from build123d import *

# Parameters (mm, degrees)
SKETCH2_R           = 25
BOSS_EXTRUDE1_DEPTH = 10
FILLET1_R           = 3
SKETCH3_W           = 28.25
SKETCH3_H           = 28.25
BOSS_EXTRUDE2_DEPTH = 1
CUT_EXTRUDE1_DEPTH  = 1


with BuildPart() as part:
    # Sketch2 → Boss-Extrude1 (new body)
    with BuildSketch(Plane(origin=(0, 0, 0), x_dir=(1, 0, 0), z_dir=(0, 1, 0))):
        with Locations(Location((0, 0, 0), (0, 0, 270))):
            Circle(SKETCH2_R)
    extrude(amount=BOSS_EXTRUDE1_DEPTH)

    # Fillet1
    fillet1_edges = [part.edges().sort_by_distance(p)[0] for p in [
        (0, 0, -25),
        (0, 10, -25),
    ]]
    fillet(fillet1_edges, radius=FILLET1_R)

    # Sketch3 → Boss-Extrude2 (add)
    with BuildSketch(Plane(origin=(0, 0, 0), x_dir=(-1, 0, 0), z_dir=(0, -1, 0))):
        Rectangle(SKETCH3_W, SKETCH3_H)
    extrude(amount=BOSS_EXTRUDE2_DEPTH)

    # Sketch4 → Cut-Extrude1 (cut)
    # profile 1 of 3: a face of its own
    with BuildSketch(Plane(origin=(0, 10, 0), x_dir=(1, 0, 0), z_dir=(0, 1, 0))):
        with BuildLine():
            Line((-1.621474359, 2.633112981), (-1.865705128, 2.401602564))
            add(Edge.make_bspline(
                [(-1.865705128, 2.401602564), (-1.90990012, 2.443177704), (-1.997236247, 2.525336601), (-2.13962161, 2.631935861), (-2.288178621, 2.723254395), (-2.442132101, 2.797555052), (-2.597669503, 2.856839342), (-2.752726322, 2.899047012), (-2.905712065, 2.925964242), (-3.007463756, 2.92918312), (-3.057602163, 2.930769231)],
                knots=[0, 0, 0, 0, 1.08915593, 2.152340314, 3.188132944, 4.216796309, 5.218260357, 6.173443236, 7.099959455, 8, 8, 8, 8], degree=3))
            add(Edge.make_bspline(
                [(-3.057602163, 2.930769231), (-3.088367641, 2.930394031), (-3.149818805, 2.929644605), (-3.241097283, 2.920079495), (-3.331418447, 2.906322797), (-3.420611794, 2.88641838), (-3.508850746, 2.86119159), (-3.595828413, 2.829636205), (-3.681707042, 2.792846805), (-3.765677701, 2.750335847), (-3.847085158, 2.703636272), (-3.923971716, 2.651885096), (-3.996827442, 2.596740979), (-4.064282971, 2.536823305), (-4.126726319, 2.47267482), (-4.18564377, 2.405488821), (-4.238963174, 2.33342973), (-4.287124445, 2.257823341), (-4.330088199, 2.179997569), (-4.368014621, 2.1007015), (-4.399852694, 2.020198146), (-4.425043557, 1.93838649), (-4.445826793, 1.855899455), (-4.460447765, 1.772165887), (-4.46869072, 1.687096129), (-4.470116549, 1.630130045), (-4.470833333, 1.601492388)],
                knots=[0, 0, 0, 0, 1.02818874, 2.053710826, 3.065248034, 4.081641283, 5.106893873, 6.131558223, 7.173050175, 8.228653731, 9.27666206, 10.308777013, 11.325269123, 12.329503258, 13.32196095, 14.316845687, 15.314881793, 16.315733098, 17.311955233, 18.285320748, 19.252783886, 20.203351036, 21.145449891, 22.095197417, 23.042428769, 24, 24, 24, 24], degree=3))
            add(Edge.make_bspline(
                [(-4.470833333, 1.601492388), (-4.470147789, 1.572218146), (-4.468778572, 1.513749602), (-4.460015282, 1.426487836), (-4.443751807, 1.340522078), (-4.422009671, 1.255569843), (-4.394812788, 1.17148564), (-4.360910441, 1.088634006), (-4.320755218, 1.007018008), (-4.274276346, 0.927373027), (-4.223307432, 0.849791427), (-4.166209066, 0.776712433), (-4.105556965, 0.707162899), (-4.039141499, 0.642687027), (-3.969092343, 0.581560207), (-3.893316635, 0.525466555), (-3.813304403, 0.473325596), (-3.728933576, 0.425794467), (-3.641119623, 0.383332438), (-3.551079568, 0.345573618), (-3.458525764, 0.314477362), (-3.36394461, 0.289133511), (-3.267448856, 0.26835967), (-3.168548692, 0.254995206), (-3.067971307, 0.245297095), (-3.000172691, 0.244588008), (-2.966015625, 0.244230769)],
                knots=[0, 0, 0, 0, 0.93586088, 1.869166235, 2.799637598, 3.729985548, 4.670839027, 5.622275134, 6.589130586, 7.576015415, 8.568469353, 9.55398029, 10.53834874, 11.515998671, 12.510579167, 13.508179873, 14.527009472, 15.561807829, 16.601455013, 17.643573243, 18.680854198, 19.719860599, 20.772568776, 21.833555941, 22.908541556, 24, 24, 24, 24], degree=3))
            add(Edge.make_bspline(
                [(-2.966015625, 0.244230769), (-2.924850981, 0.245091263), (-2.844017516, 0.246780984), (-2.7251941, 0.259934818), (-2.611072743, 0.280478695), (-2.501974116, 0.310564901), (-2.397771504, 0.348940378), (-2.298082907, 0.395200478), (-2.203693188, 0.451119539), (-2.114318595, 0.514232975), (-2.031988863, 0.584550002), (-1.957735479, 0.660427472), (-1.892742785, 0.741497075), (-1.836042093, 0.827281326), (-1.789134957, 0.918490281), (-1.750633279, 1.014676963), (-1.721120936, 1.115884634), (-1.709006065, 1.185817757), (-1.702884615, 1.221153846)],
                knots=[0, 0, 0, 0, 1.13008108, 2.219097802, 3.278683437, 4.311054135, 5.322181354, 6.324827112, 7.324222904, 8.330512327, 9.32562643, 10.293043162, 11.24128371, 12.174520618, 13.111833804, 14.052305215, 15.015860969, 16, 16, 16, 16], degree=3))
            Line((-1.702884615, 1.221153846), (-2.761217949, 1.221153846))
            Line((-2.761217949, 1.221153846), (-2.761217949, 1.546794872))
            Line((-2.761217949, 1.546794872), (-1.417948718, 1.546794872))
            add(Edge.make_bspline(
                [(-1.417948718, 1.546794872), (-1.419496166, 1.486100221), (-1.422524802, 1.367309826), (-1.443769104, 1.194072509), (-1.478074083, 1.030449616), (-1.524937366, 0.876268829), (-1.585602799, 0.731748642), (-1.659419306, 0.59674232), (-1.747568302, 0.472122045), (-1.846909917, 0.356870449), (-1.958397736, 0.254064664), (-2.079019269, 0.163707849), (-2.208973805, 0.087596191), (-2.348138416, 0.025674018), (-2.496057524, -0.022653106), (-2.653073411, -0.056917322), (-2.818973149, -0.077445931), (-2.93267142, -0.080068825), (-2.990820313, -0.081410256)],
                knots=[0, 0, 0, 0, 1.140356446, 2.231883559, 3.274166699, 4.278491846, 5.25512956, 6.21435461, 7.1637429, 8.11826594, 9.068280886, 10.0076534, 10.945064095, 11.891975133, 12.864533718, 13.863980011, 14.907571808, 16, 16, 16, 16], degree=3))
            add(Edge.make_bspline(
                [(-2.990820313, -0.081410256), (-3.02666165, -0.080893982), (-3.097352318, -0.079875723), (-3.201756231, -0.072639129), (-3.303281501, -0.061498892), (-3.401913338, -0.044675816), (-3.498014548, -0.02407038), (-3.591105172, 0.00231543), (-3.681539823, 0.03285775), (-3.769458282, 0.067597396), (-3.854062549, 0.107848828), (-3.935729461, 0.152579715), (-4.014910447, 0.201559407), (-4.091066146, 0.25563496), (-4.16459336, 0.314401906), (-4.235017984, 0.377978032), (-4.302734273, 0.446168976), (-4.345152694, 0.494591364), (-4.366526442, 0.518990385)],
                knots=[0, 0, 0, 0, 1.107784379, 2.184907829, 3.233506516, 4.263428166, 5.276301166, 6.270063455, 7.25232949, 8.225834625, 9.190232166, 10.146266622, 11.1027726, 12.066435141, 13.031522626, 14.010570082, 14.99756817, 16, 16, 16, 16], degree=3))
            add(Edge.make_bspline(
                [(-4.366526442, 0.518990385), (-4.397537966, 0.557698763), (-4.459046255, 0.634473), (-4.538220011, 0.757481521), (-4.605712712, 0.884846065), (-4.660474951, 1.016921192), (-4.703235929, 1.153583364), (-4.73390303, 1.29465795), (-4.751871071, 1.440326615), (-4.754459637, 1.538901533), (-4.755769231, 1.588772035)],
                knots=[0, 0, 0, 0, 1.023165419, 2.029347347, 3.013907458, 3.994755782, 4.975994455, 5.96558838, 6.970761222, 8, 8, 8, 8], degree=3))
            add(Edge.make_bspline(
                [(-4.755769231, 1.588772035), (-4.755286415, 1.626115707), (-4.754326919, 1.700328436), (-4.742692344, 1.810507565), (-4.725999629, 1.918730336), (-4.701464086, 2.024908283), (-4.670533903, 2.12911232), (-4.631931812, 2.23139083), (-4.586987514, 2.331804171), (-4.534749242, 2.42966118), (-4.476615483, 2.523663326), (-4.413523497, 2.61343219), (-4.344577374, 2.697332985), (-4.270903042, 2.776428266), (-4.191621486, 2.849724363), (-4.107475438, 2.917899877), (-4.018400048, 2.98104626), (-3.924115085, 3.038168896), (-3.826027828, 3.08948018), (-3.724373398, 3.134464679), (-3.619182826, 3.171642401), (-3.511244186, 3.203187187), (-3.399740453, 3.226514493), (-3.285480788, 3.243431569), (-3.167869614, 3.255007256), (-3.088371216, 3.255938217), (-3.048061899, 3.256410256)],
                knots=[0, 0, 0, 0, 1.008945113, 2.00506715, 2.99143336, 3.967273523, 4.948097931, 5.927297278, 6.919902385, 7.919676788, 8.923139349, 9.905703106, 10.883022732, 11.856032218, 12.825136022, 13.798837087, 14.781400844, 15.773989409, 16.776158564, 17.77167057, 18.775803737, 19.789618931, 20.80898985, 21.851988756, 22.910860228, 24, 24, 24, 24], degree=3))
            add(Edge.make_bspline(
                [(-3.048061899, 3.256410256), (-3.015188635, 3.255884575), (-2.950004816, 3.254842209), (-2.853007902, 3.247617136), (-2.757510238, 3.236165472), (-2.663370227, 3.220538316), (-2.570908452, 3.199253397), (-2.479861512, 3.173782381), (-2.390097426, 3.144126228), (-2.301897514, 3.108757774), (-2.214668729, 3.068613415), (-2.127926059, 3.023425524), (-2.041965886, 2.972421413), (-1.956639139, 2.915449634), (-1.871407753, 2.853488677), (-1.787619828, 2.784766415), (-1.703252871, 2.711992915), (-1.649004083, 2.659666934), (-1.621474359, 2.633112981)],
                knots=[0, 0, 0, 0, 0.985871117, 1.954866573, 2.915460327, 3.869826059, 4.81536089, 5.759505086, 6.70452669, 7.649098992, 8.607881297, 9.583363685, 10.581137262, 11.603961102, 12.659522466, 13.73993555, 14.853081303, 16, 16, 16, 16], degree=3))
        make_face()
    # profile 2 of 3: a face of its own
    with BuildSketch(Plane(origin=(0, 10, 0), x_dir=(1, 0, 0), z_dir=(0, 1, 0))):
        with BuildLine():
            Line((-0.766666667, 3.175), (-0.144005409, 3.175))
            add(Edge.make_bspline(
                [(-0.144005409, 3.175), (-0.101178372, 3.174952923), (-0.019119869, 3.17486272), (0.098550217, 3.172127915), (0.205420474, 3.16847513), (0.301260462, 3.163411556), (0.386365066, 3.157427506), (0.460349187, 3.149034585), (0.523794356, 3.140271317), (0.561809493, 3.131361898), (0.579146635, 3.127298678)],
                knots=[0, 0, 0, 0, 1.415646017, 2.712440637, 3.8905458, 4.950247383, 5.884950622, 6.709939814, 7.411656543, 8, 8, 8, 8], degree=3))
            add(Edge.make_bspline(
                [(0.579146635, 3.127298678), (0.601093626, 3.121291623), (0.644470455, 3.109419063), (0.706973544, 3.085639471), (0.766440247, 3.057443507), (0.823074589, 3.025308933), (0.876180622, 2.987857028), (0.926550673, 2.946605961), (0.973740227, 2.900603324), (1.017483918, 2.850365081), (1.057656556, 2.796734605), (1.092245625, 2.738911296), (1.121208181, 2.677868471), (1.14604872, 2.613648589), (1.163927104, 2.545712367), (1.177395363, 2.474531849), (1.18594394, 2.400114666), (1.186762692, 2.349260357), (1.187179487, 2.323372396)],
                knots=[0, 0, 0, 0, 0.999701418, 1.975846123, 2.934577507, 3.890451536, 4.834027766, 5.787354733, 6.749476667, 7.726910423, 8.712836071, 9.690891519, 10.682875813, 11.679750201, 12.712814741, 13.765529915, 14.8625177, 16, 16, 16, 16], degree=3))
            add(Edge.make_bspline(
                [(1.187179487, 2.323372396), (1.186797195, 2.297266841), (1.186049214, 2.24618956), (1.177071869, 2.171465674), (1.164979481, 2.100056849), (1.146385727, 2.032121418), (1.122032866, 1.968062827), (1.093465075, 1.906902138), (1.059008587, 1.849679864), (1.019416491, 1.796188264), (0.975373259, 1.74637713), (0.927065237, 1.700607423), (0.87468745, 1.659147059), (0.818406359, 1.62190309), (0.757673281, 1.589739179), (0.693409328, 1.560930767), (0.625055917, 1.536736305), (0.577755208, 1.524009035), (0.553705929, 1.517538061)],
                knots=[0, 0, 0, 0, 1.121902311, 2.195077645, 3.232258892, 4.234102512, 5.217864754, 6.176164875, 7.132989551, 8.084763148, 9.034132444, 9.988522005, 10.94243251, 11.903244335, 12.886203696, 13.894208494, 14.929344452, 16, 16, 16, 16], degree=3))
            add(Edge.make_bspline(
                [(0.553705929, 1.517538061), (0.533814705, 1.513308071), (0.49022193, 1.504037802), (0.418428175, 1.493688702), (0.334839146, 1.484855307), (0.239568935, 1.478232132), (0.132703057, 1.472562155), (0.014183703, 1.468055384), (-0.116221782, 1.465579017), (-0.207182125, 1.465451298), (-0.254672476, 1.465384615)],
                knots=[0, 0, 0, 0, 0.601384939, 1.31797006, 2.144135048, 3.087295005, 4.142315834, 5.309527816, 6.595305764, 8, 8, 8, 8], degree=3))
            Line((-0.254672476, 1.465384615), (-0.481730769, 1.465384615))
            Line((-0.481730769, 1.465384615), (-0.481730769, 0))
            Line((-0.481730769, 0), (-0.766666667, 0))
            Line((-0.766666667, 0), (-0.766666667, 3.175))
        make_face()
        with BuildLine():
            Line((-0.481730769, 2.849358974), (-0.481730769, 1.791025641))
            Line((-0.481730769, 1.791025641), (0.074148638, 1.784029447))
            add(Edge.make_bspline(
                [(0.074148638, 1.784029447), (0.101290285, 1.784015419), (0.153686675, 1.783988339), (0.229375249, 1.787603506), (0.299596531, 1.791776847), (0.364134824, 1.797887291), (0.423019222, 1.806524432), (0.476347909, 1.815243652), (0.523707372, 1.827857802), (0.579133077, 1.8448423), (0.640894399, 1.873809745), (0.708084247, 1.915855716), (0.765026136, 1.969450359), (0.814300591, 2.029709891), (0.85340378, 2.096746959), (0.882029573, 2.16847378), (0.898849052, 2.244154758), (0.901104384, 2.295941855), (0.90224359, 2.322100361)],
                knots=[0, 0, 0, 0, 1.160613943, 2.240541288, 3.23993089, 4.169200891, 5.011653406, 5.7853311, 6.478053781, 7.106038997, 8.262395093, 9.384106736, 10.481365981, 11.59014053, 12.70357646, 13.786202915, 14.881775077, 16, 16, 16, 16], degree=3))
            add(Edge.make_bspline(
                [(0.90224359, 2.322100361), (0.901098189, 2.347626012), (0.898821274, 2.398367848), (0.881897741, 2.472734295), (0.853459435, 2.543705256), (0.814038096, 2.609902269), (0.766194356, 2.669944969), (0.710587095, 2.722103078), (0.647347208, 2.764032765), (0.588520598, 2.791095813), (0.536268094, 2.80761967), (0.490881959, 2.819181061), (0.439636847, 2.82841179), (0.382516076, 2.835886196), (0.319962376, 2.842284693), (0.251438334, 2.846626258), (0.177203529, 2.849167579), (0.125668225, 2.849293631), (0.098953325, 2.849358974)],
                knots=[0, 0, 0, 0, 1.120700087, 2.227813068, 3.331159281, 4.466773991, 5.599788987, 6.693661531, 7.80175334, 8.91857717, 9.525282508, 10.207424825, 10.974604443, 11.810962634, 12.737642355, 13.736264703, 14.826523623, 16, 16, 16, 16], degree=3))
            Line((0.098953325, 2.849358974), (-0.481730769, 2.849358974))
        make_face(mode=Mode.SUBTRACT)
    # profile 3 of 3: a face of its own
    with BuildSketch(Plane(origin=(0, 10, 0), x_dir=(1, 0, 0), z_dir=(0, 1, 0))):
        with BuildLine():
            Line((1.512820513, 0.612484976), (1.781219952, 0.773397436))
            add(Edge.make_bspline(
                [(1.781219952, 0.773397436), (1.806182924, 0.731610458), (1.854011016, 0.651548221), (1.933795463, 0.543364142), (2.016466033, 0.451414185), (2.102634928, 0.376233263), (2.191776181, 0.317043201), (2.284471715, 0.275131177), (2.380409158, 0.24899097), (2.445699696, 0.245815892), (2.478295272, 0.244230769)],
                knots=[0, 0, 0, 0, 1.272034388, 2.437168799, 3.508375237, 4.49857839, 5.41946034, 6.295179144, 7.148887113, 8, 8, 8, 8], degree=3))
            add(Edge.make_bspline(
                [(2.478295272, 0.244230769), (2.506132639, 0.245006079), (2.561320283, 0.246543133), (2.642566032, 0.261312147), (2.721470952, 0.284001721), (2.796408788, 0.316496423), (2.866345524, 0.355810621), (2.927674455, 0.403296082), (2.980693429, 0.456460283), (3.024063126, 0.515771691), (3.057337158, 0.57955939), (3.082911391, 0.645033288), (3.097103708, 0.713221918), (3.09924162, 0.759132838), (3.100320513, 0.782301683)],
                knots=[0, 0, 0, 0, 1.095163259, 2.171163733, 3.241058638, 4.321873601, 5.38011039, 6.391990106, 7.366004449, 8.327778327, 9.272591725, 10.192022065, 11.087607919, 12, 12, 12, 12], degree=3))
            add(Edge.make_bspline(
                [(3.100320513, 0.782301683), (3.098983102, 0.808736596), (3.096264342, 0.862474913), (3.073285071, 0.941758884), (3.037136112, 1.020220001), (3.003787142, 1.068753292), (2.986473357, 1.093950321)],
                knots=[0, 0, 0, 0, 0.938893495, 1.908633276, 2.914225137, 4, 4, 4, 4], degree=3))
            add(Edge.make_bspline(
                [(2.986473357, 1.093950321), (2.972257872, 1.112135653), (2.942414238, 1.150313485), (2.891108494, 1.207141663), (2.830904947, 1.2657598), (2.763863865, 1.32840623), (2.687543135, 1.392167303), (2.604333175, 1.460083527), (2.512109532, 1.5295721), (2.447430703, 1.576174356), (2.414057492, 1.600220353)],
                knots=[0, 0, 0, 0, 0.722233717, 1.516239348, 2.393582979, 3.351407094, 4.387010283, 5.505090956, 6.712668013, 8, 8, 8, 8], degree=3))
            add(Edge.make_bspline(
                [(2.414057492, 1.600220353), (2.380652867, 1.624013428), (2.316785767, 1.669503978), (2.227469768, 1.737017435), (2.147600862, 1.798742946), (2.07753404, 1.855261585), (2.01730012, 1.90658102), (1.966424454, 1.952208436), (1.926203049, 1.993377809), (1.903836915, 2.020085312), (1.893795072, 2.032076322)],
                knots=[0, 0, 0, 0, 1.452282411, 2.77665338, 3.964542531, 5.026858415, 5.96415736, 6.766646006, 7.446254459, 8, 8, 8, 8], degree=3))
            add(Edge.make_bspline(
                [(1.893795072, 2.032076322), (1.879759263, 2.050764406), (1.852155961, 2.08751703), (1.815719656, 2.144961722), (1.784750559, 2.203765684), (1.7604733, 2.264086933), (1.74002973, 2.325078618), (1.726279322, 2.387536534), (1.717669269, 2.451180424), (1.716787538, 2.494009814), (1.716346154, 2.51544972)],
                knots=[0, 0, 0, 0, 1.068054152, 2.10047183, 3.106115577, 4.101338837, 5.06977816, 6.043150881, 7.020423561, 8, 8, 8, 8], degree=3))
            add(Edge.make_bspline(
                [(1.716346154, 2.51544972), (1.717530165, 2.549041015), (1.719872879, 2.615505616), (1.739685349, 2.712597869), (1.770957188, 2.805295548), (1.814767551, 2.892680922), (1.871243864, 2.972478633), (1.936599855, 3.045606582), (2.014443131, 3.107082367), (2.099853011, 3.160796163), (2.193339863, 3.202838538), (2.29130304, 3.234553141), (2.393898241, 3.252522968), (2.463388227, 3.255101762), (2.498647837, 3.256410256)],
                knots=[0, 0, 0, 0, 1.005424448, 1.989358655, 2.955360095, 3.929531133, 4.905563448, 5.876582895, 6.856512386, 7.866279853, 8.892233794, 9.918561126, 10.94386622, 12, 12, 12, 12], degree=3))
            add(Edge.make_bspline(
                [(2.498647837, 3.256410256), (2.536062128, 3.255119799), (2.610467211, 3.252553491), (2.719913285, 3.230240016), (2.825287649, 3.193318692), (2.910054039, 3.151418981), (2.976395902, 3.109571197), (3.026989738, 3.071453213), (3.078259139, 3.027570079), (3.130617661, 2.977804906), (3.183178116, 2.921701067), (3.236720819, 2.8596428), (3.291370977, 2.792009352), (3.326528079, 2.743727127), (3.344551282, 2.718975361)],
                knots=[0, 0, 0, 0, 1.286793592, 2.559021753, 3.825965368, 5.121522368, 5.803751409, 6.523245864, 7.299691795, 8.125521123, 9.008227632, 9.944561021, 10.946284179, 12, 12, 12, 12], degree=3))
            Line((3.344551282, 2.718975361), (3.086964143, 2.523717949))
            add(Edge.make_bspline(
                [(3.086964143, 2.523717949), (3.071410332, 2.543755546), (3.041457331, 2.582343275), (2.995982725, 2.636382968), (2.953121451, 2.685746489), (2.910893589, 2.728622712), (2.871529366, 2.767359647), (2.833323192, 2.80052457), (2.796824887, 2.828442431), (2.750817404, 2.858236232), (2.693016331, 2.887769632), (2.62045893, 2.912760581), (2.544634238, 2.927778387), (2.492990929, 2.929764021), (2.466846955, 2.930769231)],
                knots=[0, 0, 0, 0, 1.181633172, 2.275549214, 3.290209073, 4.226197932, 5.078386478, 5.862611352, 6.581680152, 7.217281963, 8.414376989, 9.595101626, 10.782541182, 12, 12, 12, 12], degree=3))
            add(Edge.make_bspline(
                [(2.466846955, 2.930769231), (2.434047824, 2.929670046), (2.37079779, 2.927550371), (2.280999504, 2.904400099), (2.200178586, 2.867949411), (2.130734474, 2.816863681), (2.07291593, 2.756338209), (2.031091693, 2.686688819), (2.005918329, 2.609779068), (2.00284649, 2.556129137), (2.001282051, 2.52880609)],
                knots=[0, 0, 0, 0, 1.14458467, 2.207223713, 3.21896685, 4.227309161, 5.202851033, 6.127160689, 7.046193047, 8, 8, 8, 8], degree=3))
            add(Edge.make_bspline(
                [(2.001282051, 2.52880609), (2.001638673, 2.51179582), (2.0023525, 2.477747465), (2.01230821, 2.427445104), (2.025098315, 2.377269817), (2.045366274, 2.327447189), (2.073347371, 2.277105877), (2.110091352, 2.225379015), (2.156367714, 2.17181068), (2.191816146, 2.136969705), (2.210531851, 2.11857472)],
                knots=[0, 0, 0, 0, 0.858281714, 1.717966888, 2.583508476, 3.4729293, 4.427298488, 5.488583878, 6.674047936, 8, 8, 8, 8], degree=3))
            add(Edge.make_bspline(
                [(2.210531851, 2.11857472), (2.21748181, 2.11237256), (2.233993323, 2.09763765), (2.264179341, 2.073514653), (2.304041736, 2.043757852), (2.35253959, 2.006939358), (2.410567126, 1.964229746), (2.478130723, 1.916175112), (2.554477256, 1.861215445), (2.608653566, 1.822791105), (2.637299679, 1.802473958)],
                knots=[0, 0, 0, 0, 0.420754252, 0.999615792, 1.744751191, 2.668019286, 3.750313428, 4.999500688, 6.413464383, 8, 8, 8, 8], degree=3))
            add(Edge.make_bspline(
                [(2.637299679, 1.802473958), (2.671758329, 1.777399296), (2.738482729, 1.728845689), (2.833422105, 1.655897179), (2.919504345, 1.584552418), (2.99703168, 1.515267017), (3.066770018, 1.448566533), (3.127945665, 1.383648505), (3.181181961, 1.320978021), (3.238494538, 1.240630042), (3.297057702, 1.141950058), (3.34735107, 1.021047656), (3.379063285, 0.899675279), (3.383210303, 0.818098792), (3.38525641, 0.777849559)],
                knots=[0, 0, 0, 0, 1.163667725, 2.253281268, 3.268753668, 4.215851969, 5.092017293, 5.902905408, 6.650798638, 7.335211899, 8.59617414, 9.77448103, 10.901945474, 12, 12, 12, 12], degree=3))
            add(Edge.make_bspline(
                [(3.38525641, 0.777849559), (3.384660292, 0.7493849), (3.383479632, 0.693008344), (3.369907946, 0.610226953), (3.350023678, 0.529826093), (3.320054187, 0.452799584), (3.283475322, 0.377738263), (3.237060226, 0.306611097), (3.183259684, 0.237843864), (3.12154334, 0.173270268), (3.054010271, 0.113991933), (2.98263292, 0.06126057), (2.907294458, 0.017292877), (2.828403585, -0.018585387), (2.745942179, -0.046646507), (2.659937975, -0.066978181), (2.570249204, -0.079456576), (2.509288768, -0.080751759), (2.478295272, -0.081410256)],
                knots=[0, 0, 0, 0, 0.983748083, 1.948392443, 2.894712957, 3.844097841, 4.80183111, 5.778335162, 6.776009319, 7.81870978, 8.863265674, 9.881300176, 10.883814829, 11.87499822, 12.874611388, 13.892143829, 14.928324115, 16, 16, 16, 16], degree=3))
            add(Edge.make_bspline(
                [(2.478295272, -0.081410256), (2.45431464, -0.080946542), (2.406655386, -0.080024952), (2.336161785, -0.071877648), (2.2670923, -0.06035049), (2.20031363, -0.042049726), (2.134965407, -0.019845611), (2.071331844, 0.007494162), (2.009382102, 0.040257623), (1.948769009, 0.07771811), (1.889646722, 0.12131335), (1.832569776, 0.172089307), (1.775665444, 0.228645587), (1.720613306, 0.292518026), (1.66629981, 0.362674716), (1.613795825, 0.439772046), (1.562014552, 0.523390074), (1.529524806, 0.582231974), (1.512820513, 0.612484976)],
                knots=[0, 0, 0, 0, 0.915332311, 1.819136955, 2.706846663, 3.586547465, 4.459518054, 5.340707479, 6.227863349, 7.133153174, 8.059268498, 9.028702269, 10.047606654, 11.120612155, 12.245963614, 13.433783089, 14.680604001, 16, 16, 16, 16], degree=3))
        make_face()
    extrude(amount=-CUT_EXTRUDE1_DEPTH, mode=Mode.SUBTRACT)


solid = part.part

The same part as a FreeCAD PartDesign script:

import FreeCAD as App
import Part
import Sketcher

V = App.Vector
Q = App.Units.Quantity


def edges_at(feature, points):
    """Names of the edges that pass closest to the given points."""
    edges = feature.Shape.Edges
    near = lambda p: min(range(len(edges)), key=lambda i: edges[i].distToShape(Part.Vertex(*p))[0])
    return sorted({f"Edge{near(p) + 1}" for p in points})

doc = App.newDocument("Part")
body = doc.addObject("PartDesign::Body", "Body")

# Sketch on XZ plane
sketch1 = body.newObject("Sketcher::SketchObject", "Sketch")
sketch1.AttachmentSupport = (doc.getObject("XZ_Plane"), [""])
sketch1.MapMode = "FlatFace"
sketch1.addGeometry(Part.Circle(V(0, 0, 0), V(0, 0, 1), 25), False)
sketch1.addConstraint([
    Sketcher.Constraint("Coincident", 0, 3, -1, 1),
    Sketcher.Constraint("Diameter", 0, Q("50 mm")),
])
pad1 = body.newObject("PartDesign::Pad", "Pad")
pad1.Profile = sketch1
pad1.Length = 10
pad1.Reversed = True
doc.recompute()

fillet = body.newObject("PartDesign::Fillet", "Fillet")
fillet.Base = (pad1, edges_at(pad1, [(0, 0, -25), (0, 10, -25)]))
fillet.Radius = 3

# Sketch on XZ plane
sketch2 = body.newObject("Sketcher::SketchObject", "Sketch001")
sketch2.AttachmentSupport = (doc.getObject("XZ_Plane"), [""])
sketch2.MapMode = "FlatFace"
sketch2.addGeometry([
    Part.LineSegment(V(14.125, -14.125, 0), V(14.125, 14.125, 0)),
    Part.LineSegment(V(14.125, 14.125, 0), V(-14.125, 14.125, 0)),
    Part.LineSegment(V(-14.125, 14.125, 0), V(-14.125, -14.125, 0)),
    Part.LineSegment(V(-14.125, -14.125, 0), V(14.125, -14.125, 0)),
], False)
sketch2.addConstraint([
    Sketcher.Constraint("Coincident", 0, 2, 1, 1),
    Sketcher.Constraint("Coincident", 1, 2, 2, 1),
    Sketcher.Constraint("Coincident", 2, 2, 3, 1),
    Sketcher.Constraint("Coincident", 3, 2, 0, 1),
    Sketcher.Constraint("Vertical", 0),
    Sketcher.Constraint("Horizontal", 1),
    Sketcher.Constraint("Vertical", 2),
    Sketcher.Constraint("Horizontal", 3),
    Sketcher.Constraint("Symmetric", 0, 2, 2, 2, -1, 1),
    Sketcher.Constraint("Equal", 3, 0),
    Sketcher.Constraint("DistanceX", 1, 2, 1, 1, Q("28.25 mm")),
])
pad2 = body.newObject("PartDesign::Pad", "Pad001")
pad2.Profile = sketch2
pad2.Length = 1

# Sketch on XZ plane
sketch3 = body.newObject("Sketcher::SketchObject", "Sketch002")
sketch3.AttachmentSupport = (doc.getObject("XZ_Plane"), [""])
sketch3.MapMode = "FlatFace"
sketch3.AttachmentOffset = App.Placement(V(0, 0, -10), App.Rotation())
sketch3.addGeometry([
    Part.LineSegment(V(-1.865705, -2.401603, 0), V(-1.621474, -2.633113, 0)),  # 0
    Part.BSplineCurve([V(-3.048062, -3.25641, 0), V(-3.015189, -3.255885, 0), V(-2.950005, -3.254842, 0), V(-2.853008, -3.247617, 0), V(-2.75751, -3.236165, 0), V(-2.66337, -3.220538, 0), V(-2.570908, -3.199253, 0), V(-2.479862, -3.173782, 0), V(-2.390097, -3.144126, 0), V(-2.301898, -3.108758, 0), V(-2.214669, -3.068613, 0), V(-2.127926, -3.023426, 0), V(-2.041966, -2.972421, 0), V(-1.956639, -2.91545, 0), V(-1.871408, -2.853489, 0), V(-1.78762, -2.784766, 0), V(-1.703253, -2.711993, 0), V(-1.649004, -2.659667, 0), V(-1.621474, -2.633113, 0)], [4, 1, 1, 1, 1, 1, 1, 1, 1, 1, 1, 1, 1, 1, 1, 1, 4], [0, 0.985871117, 1.954866573, 2.915460327, 3.869826059, 4.81536089, 5.759505086, 6.70452669, 7.649098992, 8.607881297, 9.583363685, 10.581137262, 11.603961102, 12.659522466, 13.73993555, 14.853081303, 16], False, 3, [1, 1, 1, 1, 1, 1, 1, 1, 1, 1, 1, 1, 1, 1, 1, 1, 1, 1, 1], False),  # 1
    Part.BSplineCurve([V(-4.755769, -1.588772, 0), V(-4.755286, -1.626116, 0), V(-4.754327, -1.700328, 0), V(-4.742692, -1.810508, 0), V(-4.726, -1.91873, 0), V(-4.701464, -2.024908, 0), V(-4.670534, -2.129112, 0), V(-4.631932, -2.231391, 0), V(-4.586988, -2.331804, 0), V(-4.534749, -2.429661, 0), V(-4.476615, -2.523663, 0), V(-4.413523, -2.613432, 0), V(-4.344577, -2.697333, 0), V(-4.270903, -2.776428, 0), V(-4.191621, -2.849724, 0), V(-4.107475, -2.9179, 0), V(-4.0184, -2.981046, 0), V(-3.924115, -3.038169, 0), V(-3.826028, -3.08948, 0), V(-3.724373, -3.134465, 0), V(-3.619183, -3.171642, 0), V(-3.511244, -3.203187, 0), V(-3.39974, -3.226514, 0), V(-3.285481, -3.243432, 0), V(-3.16787, -3.255007, 0), V(-3.088371, -3.255938, 0), V(-3.048062, -3.25641, 0)], [4, 1, 1, 1, 1, 1, 1, 1, 1, 1, 1, 1, 1, 1, 1, 1, 1, 1, 1, 1, 1, 1, 1, 1, 4], [0, 1.008945113, 2.00506715, 2.99143336, 3.967273523, 4.948097931, 5.927297278, 6.919902385, 7.919676788, 8.923139349, 9.905703106, 10.883022732, 11.856032218, 12.825136022, 13.798837087, 14.781400844, 15.773989409, 16.776158564, 17.77167057, 18.775803737, 19.789618931, 20.80898985, 21.851988756, 22.910860228, 24], False, 3, [1, 1, 1, 1, 1, 1, 1, 1, 1, 1, 1, 1, 1, 1, 1, 1, 1, 1, 1, 1, 1, 1, 1, 1, 1, 1, 1], False),  # 2
    Part.BSplineCurve([V(-4.366526, -0.51899, 0), V(-4.397538, -0.557699, 0), V(-4.459046, -0.634473, 0), V(-4.53822, -0.757482, 0), V(-4.605713, -0.884846, 0), V(-4.660475, -1.016921, 0), V(-4.703236, -1.153583, 0), V(-4.733903, -1.294658, 0), V(-4.751871, -1.440327, 0), V(-4.75446, -1.538902, 0), V(-4.755769, -1.588772, 0)], [4, 1, 1, 1, 1, 1, 1, 1, 4], [0, 1.023165419, 2.029347347, 3.013907458, 3.994755782, 4.975994455, 5.96558838, 6.970761222, 8], False, 3, [1, 1, 1, 1, 1, 1, 1, 1, 1, 1, 1], False),  # 3
    Part.BSplineCurve([V(-2.99082, 0.08141, 0), V(-3.026662, 0.080894, 0), V(-3.097352, 0.079876, 0), V(-3.201756, 0.072639, 0), V(-3.303282, 0.061499, 0), V(-3.401913, 0.044676, 0), V(-3.498015, 0.02407, 0), V(-3.591105, -0.002315, 0), V(-3.68154, -0.032858, 0), V(-3.769458, -0.067597, 0), V(-3.854063, -0.107849, 0), V(-3.935729, -0.15258, 0), V(-4.01491, -0.201559, 0), V(-4.091066, -0.255635, 0), V(-4.164593, -0.314402, 0), V(-4.235018, -0.377978, 0), V(-4.302734, -0.446169, 0), V(-4.345153, -0.494591, 0), V(-4.366526, -0.51899, 0)], [4, 1, 1, 1, 1, 1, 1, 1, 1, 1, 1, 1, 1, 1, 1, 1, 4], [0, 1.107784379, 2.184907829, 3.233506516, 4.263428166, 5.276301166, 6.270063455, 7.25232949, 8.225834625, 9.190232166, 10.146266622, 11.1027726, 12.066435141, 13.031522626, 14.010570082, 14.99756817, 16], False, 3, [1, 1, 1, 1, 1, 1, 1, 1, 1, 1, 1, 1, 1, 1, 1, 1, 1, 1, 1], False),  # 4
    Part.BSplineCurve([V(-1.417949, -1.546795, 0), V(-1.419496, -1.4861, 0), V(-1.422525, -1.36731, 0), V(-1.443769, -1.194073, 0), V(-1.478074, -1.03045, 0), V(-1.524937, -0.876269, 0), V(-1.585603, -0.731749, 0), V(-1.659419, -0.596742, 0), V(-1.747568, -0.472122, 0), V(-1.84691, -0.35687, 0), V(-1.958398, -0.254065, 0), V(-2.079019, -0.163708, 0), V(-2.208974, -0.087596, 0), V(-2.348138, -0.025674, 0), V(-2.496058, 0.022653, 0), V(-2.653073, 0.056917, 0), V(-2.818973, 0.077446, 0), V(-2.932671, 0.080069, 0), V(-2.99082, 0.08141, 0)], [4, 1, 1, 1, 1, 1, 1, 1, 1, 1, 1, 1, 1, 1, 1, 1, 4], [0, 1.140356446, 2.231883559, 3.274166699, 4.278491846, 5.25512956, 6.21435461, 7.1637429, 8.11826594, 9.068280886, 10.0076534, 10.945064095, 11.891975133, 12.864533718, 13.863980011, 14.907571808, 16], False, 3, [1, 1, 1, 1, 1, 1, 1, 1, 1, 1, 1, 1, 1, 1, 1, 1, 1, 1, 1], False),  # 5
    Part.LineSegment(V(-1.417949, -1.546795, 0), V(-2.761218, -1.546795, 0)),  # 6
    Part.LineSegment(V(-2.761218, -1.546795, 0), V(-2.761218, -1.221154, 0)),  # 7
    Part.LineSegment(V(-2.761218, -1.221154, 0), V(-1.702885, -1.221154, 0)),  # 8
    Part.BSplineCurve([V(-2.966016, -0.244231, 0), V(-2.924851, -0.245091, 0), V(-2.844018, -0.246781, 0), V(-2.725194, -0.259935, 0), V(-2.611073, -0.280479, 0), V(-2.501974, -0.310565, 0), V(-2.397772, -0.34894, 0), V(-2.298083, -0.3952, 0), V(-2.203693, -0.45112, 0), V(-2.114319, -0.514233, 0), V(-2.031989, -0.58455, 0), V(-1.957735, -0.660427, 0), V(-1.892743, -0.741497, 0), V(-1.836042, -0.827281, 0), V(-1.789135, -0.91849, 0), V(-1.750633, -1.014677, 0), V(-1.721121, -1.115885, 0), V(-1.709006, -1.185818, 0), V(-1.702885, -1.221154, 0)], [4, 1, 1, 1, 1, 1, 1, 1, 1, 1, 1, 1, 1, 1, 1, 1, 4], [0, 1.13008108, 2.219097802, 3.278683437, 4.311054135, 5.322181354, 6.324827112, 7.324222904, 8.330512327, 9.32562643, 10.293043162, 11.24128371, 12.174520618, 13.111833804, 14.052305215, 15.015860969, 16], False, 3, [1, 1, 1, 1, 1, 1, 1, 1, 1, 1, 1, 1, 1, 1, 1, 1, 1, 1, 1], False),  # 9
    Part.BSplineCurve([V(-4.470833, -1.601492, 0), V(-4.470148, -1.572218, 0), V(-4.468779, -1.51375, 0), V(-4.460015, -1.426488, 0), V(-4.443752, -1.340522, 0), V(-4.42201, -1.25557, 0), V(-4.394813, -1.171486, 0), V(-4.36091, -1.088634, 0), V(-4.320755, -1.007018, 0), V(-4.274276, -0.927373, 0), V(-4.223307, -0.849791, 0), V(-4.166209, -0.776712, 0), V(-4.105557, -0.707163, 0), V(-4.039141, -0.642687, 0), V(-3.969092, -0.58156, 0), V(-3.893317, -0.525467, 0), V(-3.813304, -0.473326, 0), V(-3.728934, -0.425794, 0), V(-3.64112, -0.383332, 0), V(-3.55108, -0.345574, 0), V(-3.458526, -0.314477, 0), V(-3.363945, -0.289134, 0), V(-3.267449, -0.26836, 0), V(-3.168549, -0.254995, 0), V(-3.067971, -0.245297, 0), V(-3.000173, -0.244588, 0), V(-2.966016, -0.244231, 0)], [4, 1, 1, 1, 1, 1, 1, 1, 1, 1, 1, 1, 1, 1, 1, 1, 1, 1, 1, 1, 1, 1, 1, 1, 4], [0, 0.93586088, 1.869166235, 2.799637598, 3.729985548, 4.670839027, 5.622275134, 6.589130586, 7.576015415, 8.568469353, 9.55398029, 10.53834874, 11.515998671, 12.510579167, 13.508179873, 14.527009472, 15.561807829, 16.601455013, 17.643573243, 18.680854198, 19.719860599, 20.772568776, 21.833555941, 22.908541556, 24], False, 3, [1, 1, 1, 1, 1, 1, 1, 1, 1, 1, 1, 1, 1, 1, 1, 1, 1, 1, 1, 1, 1, 1, 1, 1, 1, 1, 1], False),  # 10
    Part.BSplineCurve([V(-3.057602, -2.930769, 0), V(-3.088368, -2.930394, 0), V(-3.149819, -2.929645, 0), V(-3.241097, -2.920079, 0), V(-3.331418, -2.906323, 0), V(-3.420612, -2.886418, 0), V(-3.508851, -2.861192, 0), V(-3.595828, -2.829636, 0), V(-3.681707, -2.792847, 0), V(-3.765678, -2.750336, 0), V(-3.847085, -2.703636, 0), V(-3.923972, -2.651885, 0), V(-3.996827, -2.596741, 0), V(-4.064283, -2.536823, 0), V(-4.126726, -2.472675, 0), V(-4.185644, -2.405489, 0), V(-4.238963, -2.33343, 0), V(-4.287124, -2.257823, 0), V(-4.330088, -2.179998, 0), V(-4.368015, -2.100701, 0), V(-4.399853, -2.020198, 0), V(-4.425044, -1.938386, 0), V(-4.445827, -1.855899, 0), V(-4.460448, -1.772166, 0), V(-4.468691, -1.687096, 0), V(-4.470117, -1.63013, 0), V(-4.470833, -1.601492, 0)], [4, 1, 1, 1, 1, 1, 1, 1, 1, 1, 1, 1, 1, 1, 1, 1, 1, 1, 1, 1, 1, 1, 1, 1, 4], [0, 1.02818874, 2.053710826, 3.065248034, 4.081641283, 5.106893873, 6.131558223, 7.173050175, 8.228653731, 9.27666206, 10.308777013, 11.325269123, 12.329503258, 13.32196095, 14.316845687, 15.314881793, 16.315733098, 17.311955233, 18.285320748, 19.252783886, 20.203351036, 21.145449891, 22.095197417, 23.042428769, 24], False, 3, [1, 1, 1, 1, 1, 1, 1, 1, 1, 1, 1, 1, 1, 1, 1, 1, 1, 1, 1, 1, 1, 1, 1, 1, 1, 1, 1], False),  # 11
    Part.BSplineCurve([V(-1.865705, -2.401603, 0), V(-1.9099, -2.443178, 0), V(-1.997236, -2.525337, 0), V(-2.139622, -2.631936, 0), V(-2.288179, -2.723254, 0), V(-2.442132, -2.797555, 0), V(-2.59767, -2.856839, 0), V(-2.752726, -2.899047, 0), V(-2.905712, -2.925964, 0), V(-3.007464, -2.929183, 0), V(-3.057602, -2.930769, 0)], [4, 1, 1, 1, 1, 1, 1, 1, 4], [0, 1.08915593, 2.152340314, 3.188132944, 4.216796309, 5.218260357, 6.173443236, 7.099959455, 8], False, 3, [1, 1, 1, 1, 1, 1, 1, 1, 1, 1, 1], False),  # 12
    Part.LineSegment(V(-0.144005, -3.175, 0), V(-0.766667, -3.175, 0)),  # 13
    Part.LineSegment(V(-0.766667, -3.175, 0), V(-0.766667, 0, 0)),  # 14
    Part.LineSegment(V(-0.766667, 0, 0), V(-0.481731, 0, 0)),  # 15
    Part.LineSegment(V(-0.481731, 0, 0), V(-0.481731, -1.465385, 0)),  # 16
    Part.LineSegment(V(-0.481731, -1.465385, 0), V(-0.254672, -1.465385, 0)),  # 17
    Part.BSplineCurve([V(0.553706, -1.517538, 0), V(0.533815, -1.513308, 0), V(0.490222, -1.504038, 0), V(0.418428, -1.493689, 0), V(0.334839, -1.484855, 0), V(0.239569, -1.478232, 0), V(0.132703, -1.472562, 0), V(0.014184, -1.468055, 0), V(-0.116222, -1.465579, 0), V(-0.207182, -1.465451, 0), V(-0.254672, -1.465385, 0)], [4, 1, 1, 1, 1, 1, 1, 1, 4], [0, 0.601384939, 1.31797006, 2.144135048, 3.087295005, 4.142315834, 5.309527816, 6.595305764, 8], False, 3, [1, 1, 1, 1, 1, 1, 1, 1, 1, 1, 1], False),  # 18
    Part.BSplineCurve([V(1.187179, -2.323372, 0), V(1.186797, -2.297267, 0), V(1.186049, -2.24619, 0), V(1.177072, -2.171466, 0), V(1.164979, -2.100057, 0), V(1.146386, -2.032121, 0), V(1.122033, -1.968063, 0), V(1.093465, -1.906902, 0), V(1.059009, -1.84968, 0), V(1.019416, -1.796188, 0), V(0.975373, -1.746377, 0), V(0.927065, -1.700607, 0), V(0.874687, -1.659147, 0), V(0.818406, -1.621903, 0), V(0.757673, -1.589739, 0), V(0.693409, -1.560931, 0), V(0.625056, -1.536736, 0), V(0.577755, -1.524009, 0), V(0.553706, -1.517538, 0)], [4, 1, 1, 1, 1, 1, 1, 1, 1, 1, 1, 1, 1, 1, 1, 1, 4], [0, 1.121902311, 2.195077645, 3.232258892, 4.234102512, 5.217864754, 6.176164875, 7.132989551, 8.084763148, 9.034132444, 9.988522005, 10.94243251, 11.903244335, 12.886203696, 13.894208494, 14.929344452, 16], False, 3, [1, 1, 1, 1, 1, 1, 1, 1, 1, 1, 1, 1, 1, 1, 1, 1, 1, 1, 1], False),  # 19
    Part.BSplineCurve([V(0.579147, -3.127299, 0), V(0.601094, -3.121292, 0), V(0.64447, -3.109419, 0), V(0.706974, -3.085639, 0), V(0.76644, -3.057444, 0), V(0.823075, -3.025309, 0), V(0.876181, -2.987857, 0), V(0.926551, -2.946606, 0), V(0.97374, -2.900603, 0), V(1.017484, -2.850365, 0), V(1.057657, -2.796735, 0), V(1.092246, -2.738911, 0), V(1.121208, -2.677868, 0), V(1.146049, -2.613649, 0), V(1.163927, -2.545712, 0), V(1.177395, -2.474532, 0), V(1.185944, -2.400115, 0), V(1.186763, -2.34926, 0), V(1.187179, -2.323372, 0)], [4, 1, 1, 1, 1, 1, 1, 1, 1, 1, 1, 1, 1, 1, 1, 1, 4], [0, 0.999701418, 1.975846123, 2.934577507, 3.890451536, 4.834027766, 5.787354733, 6.749476667, 7.726910423, 8.712836071, 9.690891519, 10.682875813, 11.679750201, 12.712814741, 13.765529915, 14.8625177, 16], False, 3, [1, 1, 1, 1, 1, 1, 1, 1, 1, 1, 1, 1, 1, 1, 1, 1, 1, 1, 1], False),  # 20
    Part.BSplineCurve([V(-0.144005, -3.175, 0), V(-0.101178, -3.174953, 0), V(-0.01912, -3.174863, 0), V(0.09855, -3.172128, 0), V(0.20542, -3.168475, 0), V(0.30126, -3.163412, 0), V(0.386365, -3.157428, 0), V(0.460349, -3.149035, 0), V(0.523794, -3.140271, 0), V(0.561809, -3.131362, 0), V(0.579147, -3.127299, 0)], [4, 1, 1, 1, 1, 1, 1, 1, 4], [0, 1.415646017, 2.712440637, 3.8905458, 4.950247383, 5.884950622, 6.709939814, 7.411656543, 8], False, 3, [1, 1, 1, 1, 1, 1, 1, 1, 1, 1, 1], False),  # 21
    Part.LineSegment(V(-0.481731, -2.849359, 0), V(0.098953, -2.849359, 0)),  # 22
    Part.BSplineCurve([V(0.902244, -2.3221, 0), V(0.901098, -2.347626, 0), V(0.898821, -2.398368, 0), V(0.881898, -2.472734, 0), V(0.853459, -2.543705, 0), V(0.814038, -2.609902, 0), V(0.766194, -2.669945, 0), V(0.710587, -2.722103, 0), V(0.647347, -2.764033, 0), V(0.588521, -2.791096, 0), V(0.536268, -2.80762, 0), V(0.490882, -2.819181, 0), V(0.439637, -2.828412, 0), V(0.382516, -2.835886, 0), V(0.319962, -2.842285, 0), V(0.251438, -2.846626, 0), V(0.177204, -2.849168, 0), V(0.125668, -2.849294, 0), V(0.098953, -2.849359, 0)], [4, 1, 1, 1, 1, 1, 1, 1, 1, 1, 1, 1, 1, 1, 1, 1, 4], [0, 1.120700087, 2.227813068, 3.331159281, 4.466773991, 5.599788987, 6.693661531, 7.80175334, 8.91857717, 9.525282508, 10.207424825, 10.974604443, 11.810962634, 12.737642355, 13.736264703, 14.826523623, 16], False, 3, [1, 1, 1, 1, 1, 1, 1, 1, 1, 1, 1, 1, 1, 1, 1, 1, 1, 1, 1], False),  # 23
    Part.BSplineCurve([V(0.074149, -1.784029, 0), V(0.10129, -1.784015, 0), V(0.153687, -1.783988, 0), V(0.229375, -1.787604, 0), V(0.299597, -1.791777, 0), V(0.364135, -1.797887, 0), V(0.423019, -1.806524, 0), V(0.476348, -1.815244, 0), V(0.523707, -1.827858, 0), V(0.579133, -1.844842, 0), V(0.640894, -1.87381, 0), V(0.708084, -1.915856, 0), V(0.765026, -1.96945, 0), V(0.814301, -2.02971, 0), V(0.853404, -2.096747, 0), V(0.88203, -2.168474, 0), V(0.898849, -2.244155, 0), V(0.901104, -2.295942, 0), V(0.902244, -2.3221, 0)], [4, 1, 1, 1, 1, 1, 1, 1, 1, 1, 1, 1, 1, 1, 1, 1, 4], [0, 1.160613943, 2.240541288, 3.23993089, 4.169200891, 5.011653406, 5.7853311, 6.478053781, 7.106038997, 8.262395093, 9.384106736, 10.481365981, 11.59014053, 12.70357646, 13.786202915, 14.881775077, 16], False, 3, [1, 1, 1, 1, 1, 1, 1, 1, 1, 1, 1, 1, 1, 1, 1, 1, 1, 1, 1], False),  # 24
    Part.LineSegment(V(0.074149, -1.784029, 0), V(-0.481731, -1.791026, 0)),  # 25
    Part.LineSegment(V(-0.481731, -1.791026, 0), V(-0.481731, -2.849359, 0)),  # 26
    Part.LineSegment(V(1.78122, -0.773397, 0), V(1.512821, -0.612485, 0)),  # 27
    Part.BSplineCurve([V(2.478295, 0.08141, 0), V(2.454315, 0.080947, 0), V(2.406655, 0.080025, 0), V(2.336162, 0.071878, 0), V(2.267092, 0.06035, 0), V(2.200314, 0.04205, 0), V(2.134965, 0.019846, 0), V(2.071332, -0.007494, 0), V(2.009382, -0.040258, 0), V(1.948769, -0.077718, 0), V(1.889647, -0.121313, 0), V(1.83257, -0.172089, 0), V(1.775665, -0.228646, 0), V(1.720613, -0.292518, 0), V(1.6663, -0.362675, 0), V(1.613796, -0.439772, 0), V(1.562015, -0.52339, 0), V(1.529525, -0.582232, 0), V(1.512821, -0.612485, 0)], [4, 1, 1, 1, 1, 1, 1, 1, 1, 1, 1, 1, 1, 1, 1, 1, 4], [0, 0.915332311, 1.819136955, 2.706846663, 3.586547465, 4.459518054, 5.340707479, 6.227863349, 7.133153174, 8.059268498, 9.028702269, 10.047606654, 11.120612155, 12.245963614, 13.433783089, 14.680604001, 16], False, 3, [1, 1, 1, 1, 1, 1, 1, 1, 1, 1, 1, 1, 1, 1, 1, 1, 1, 1, 1], False),  # 28
    Part.BSplineCurve([V(3.385256, -0.77785, 0), V(3.38466, -0.749385, 0), V(3.38348, -0.693008, 0), V(3.369908, -0.610227, 0), V(3.350024, -0.529826, 0), V(3.320054, -0.4528, 0), V(3.283475, -0.377738, 0), V(3.23706, -0.306611, 0), V(3.18326, -0.237844, 0), V(3.121543, -0.17327, 0), V(3.05401, -0.113992, 0), V(2.982633, -0.061261, 0), V(2.907294, -0.017293, 0), V(2.828404, 0.018585, 0), V(2.745942, 0.046647, 0), V(2.659938, 0.066978, 0), V(2.570249, 0.079457, 0), V(2.509289, 0.080752, 0), V(2.478295, 0.08141, 0)], [4, 1, 1, 1, 1, 1, 1, 1, 1, 1, 1, 1, 1, 1, 1, 1, 4], [0, 0.983748083, 1.948392443, 2.894712957, 3.844097841, 4.80183111, 5.778335162, 6.776009319, 7.81870978, 8.863265674, 9.881300176, 10.883814829, 11.87499822, 12.874611388, 13.892143829, 14.928324115, 16], False, 3, [1, 1, 1, 1, 1, 1, 1, 1, 1, 1, 1, 1, 1, 1, 1, 1, 1, 1, 1], False),  # 29
    Part.BSplineCurve([V(2.6373, -1.802474, 0), V(2.671758, -1.777399, 0), V(2.738483, -1.728846, 0), V(2.833422, -1.655897, 0), V(2.919504, -1.584552, 0), V(2.997032, -1.515267, 0), V(3.06677, -1.448567, 0), V(3.127946, -1.383649, 0), V(3.181182, -1.320978, 0), V(3.238495, -1.24063, 0), V(3.297058, -1.14195, 0), V(3.347351, -1.021048, 0), V(3.379063, -0.899675, 0), V(3.38321, -0.818099, 0), V(3.385256, -0.77785, 0)], [4, 1, 1, 1, 1, 1, 1, 1, 1, 1, 1, 1, 4], [0, 1.163667725, 2.253281268, 3.268753668, 4.215851969, 5.092017293, 5.902905408, 6.650798638, 7.335211899, 8.59617414, 9.77448103, 10.901945474, 12], False, 3, [1, 1, 1, 1, 1, 1, 1, 1, 1, 1, 1, 1, 1, 1, 1], False),  # 30
    Part.BSplineCurve([V(2.210532, -2.118575, 0), V(2.217482, -2.112373, 0), V(2.233993, -2.097638, 0), V(2.264179, -2.073515, 0), V(2.304042, -2.043758, 0), V(2.35254, -2.006939, 0), V(2.410567, -1.96423, 0), V(2.478131, -1.916175, 0), V(2.554477, -1.861215, 0), V(2.608654, -1.822791, 0), V(2.6373, -1.802474, 0)], [4, 1, 1, 1, 1, 1, 1, 1, 4], [0, 0.420754252, 0.999615792, 1.744751191, 2.668019286, 3.750313428, 4.999500688, 6.413464383, 8], False, 3, [1, 1, 1, 1, 1, 1, 1, 1, 1, 1, 1], False),  # 31
    Part.BSplineCurve([V(2.001282, -2.528806, 0), V(2.001639, -2.511796, 0), V(2.002353, -2.477747, 0), V(2.012308, -2.427445, 0), V(2.025098, -2.37727, 0), V(2.045366, -2.327447, 0), V(2.073347, -2.277106, 0), V(2.110091, -2.225379, 0), V(2.156368, -2.171811, 0), V(2.191816, -2.13697, 0), V(2.210532, -2.118575, 0)], [4, 1, 1, 1, 1, 1, 1, 1, 4], [0, 0.858281714, 1.717966888, 2.583508476, 3.4729293, 4.427298488, 5.488583878, 6.674047936, 8], False, 3, [1, 1, 1, 1, 1, 1, 1, 1, 1, 1, 1], False),  # 32
    Part.BSplineCurve([V(2.466847, -2.930769, 0), V(2.434048, -2.92967, 0), V(2.370798, -2.92755, 0), V(2.281, -2.9044, 0), V(2.200179, -2.867949, 0), V(2.130734, -2.816864, 0), V(2.072916, -2.756338, 0), V(2.031092, -2.686689, 0), V(2.005918, -2.609779, 0), V(2.002846, -2.556129, 0), V(2.001282, -2.528806, 0)], [4, 1, 1, 1, 1, 1, 1, 1, 4], [0, 1.14458467, 2.207223713, 3.21896685, 4.227309161, 5.202851033, 6.127160689, 7.046193047, 8], False, 3, [1, 1, 1, 1, 1, 1, 1, 1, 1, 1, 1], False),  # 33
    Part.BSplineCurve([V(3.086964, -2.523718, 0), V(3.07141, -2.543756, 0), V(3.041457, -2.582343, 0), V(2.995983, -2.636383, 0), V(2.953121, -2.685746, 0), V(2.910894, -2.728623, 0), V(2.871529, -2.76736, 0), V(2.833323, -2.800525, 0), V(2.796825, -2.828442, 0), V(2.750817, -2.858236, 0), V(2.693016, -2.88777, 0), V(2.620459, -2.912761, 0), V(2.544634, -2.927778, 0), V(2.492991, -2.929764, 0), V(2.466847, -2.930769, 0)], [4, 1, 1, 1, 1, 1, 1, 1, 1, 1, 1, 1, 4], [0, 1.181633172, 2.275549214, 3.290209073, 4.226197932, 5.078386478, 5.862611352, 6.581680152, 7.217281963, 8.414376989, 9.595101626, 10.782541182, 12], False, 3, [1, 1, 1, 1, 1, 1, 1, 1, 1, 1, 1, 1, 1, 1, 1], False),  # 34
    Part.LineSegment(V(3.086964, -2.523718, 0), V(3.344551, -2.718975, 0)),  # 35
    Part.BSplineCurve([V(2.498648, -3.25641, 0), V(2.536062, -3.25512, 0), V(2.610467, -3.252553, 0), V(2.719913, -3.23024, 0), V(2.825288, -3.193319, 0), V(2.910054, -3.151419, 0), V(2.976396, -3.109571, 0), V(3.02699, -3.071453, 0), V(3.078259, -3.02757, 0), V(3.130618, -2.977805, 0), V(3.183178, -2.921701, 0), V(3.236721, -2.859643, 0), V(3.291371, -2.792009, 0), V(3.326528, -2.743727, 0), V(3.344551, -2.718975, 0)], [4, 1, 1, 1, 1, 1, 1, 1, 1, 1, 1, 1, 4], [0, 1.286793592, 2.559021753, 3.825965368, 5.121522368, 5.803751409, 6.523245864, 7.299691795, 8.125521123, 9.008227632, 9.944561021, 10.946284179, 12], False, 3, [1, 1, 1, 1, 1, 1, 1, 1, 1, 1, 1, 1, 1, 1, 1], False),  # 36
    Part.BSplineCurve([V(1.716346, -2.51545, 0), V(1.71753, -2.549041, 0), V(1.719873, -2.615506, 0), V(1.739685, -2.712598, 0), V(1.770957, -2.805296, 0), V(1.814768, -2.892681, 0), V(1.871244, -2.972479, 0), V(1.9366, -3.045607, 0), V(2.014443, -3.107082, 0), V(2.099853, -3.160796, 0), V(2.19334, -3.202839, 0), V(2.291303, -3.234553, 0), V(2.393898, -3.252523, 0), V(2.463388, -3.255102, 0), V(2.498648, -3.25641, 0)], [4, 1, 1, 1, 1, 1, 1, 1, 1, 1, 1, 1, 4], [0, 1.005424448, 1.989358655, 2.955360095, 3.929531133, 4.905563448, 5.876582895, 6.856512386, 7.866279853, 8.892233794, 9.918561126, 10.94386622, 12], False, 3, [1, 1, 1, 1, 1, 1, 1, 1, 1, 1, 1, 1, 1, 1, 1], False),  # 37
    Part.BSplineCurve([V(1.893795, -2.032076, 0), V(1.879759, -2.050764, 0), V(1.852156, -2.087517, 0), V(1.81572, -2.144962, 0), V(1.784751, -2.203766, 0), V(1.760473, -2.264087, 0), V(1.74003, -2.325079, 0), V(1.726279, -2.387537, 0), V(1.717669, -2.45118, 0), V(1.716788, -2.49401, 0), V(1.716346, -2.51545, 0)], [4, 1, 1, 1, 1, 1, 1, 1, 4], [0, 1.068054152, 2.10047183, 3.106115577, 4.101338837, 5.06977816, 6.043150881, 7.020423561, 8], False, 3, [1, 1, 1, 1, 1, 1, 1, 1, 1, 1, 1], False),  # 38
    Part.BSplineCurve([V(2.414057, -1.60022, 0), V(2.380653, -1.624013, 0), V(2.316786, -1.669504, 0), V(2.22747, -1.737017, 0), V(2.147601, -1.798743, 0), V(2.077534, -1.855262, 0), V(2.0173, -1.906581, 0), V(1.966424, -1.952208, 0), V(1.926203, -1.993378, 0), V(1.903837, -2.020085, 0), V(1.893795, -2.032076, 0)], [4, 1, 1, 1, 1, 1, 1, 1, 4], [0, 1.452282411, 2.77665338, 3.964542531, 5.026858415, 5.96415736, 6.766646006, 7.446254459, 8], False, 3, [1, 1, 1, 1, 1, 1, 1, 1, 1, 1, 1], False),  # 39
    Part.BSplineCurve([V(2.986473, -1.09395, 0), V(2.972258, -1.112136, 0), V(2.942414, -1.150313, 0), V(2.891108, -1.207142, 0), V(2.830905, -1.26576, 0), V(2.763864, -1.328406, 0), V(2.687543, -1.392167, 0), V(2.604333, -1.460084, 0), V(2.51211, -1.529572, 0), V(2.447431, -1.576174, 0), V(2.414057, -1.60022, 0)], [4, 1, 1, 1, 1, 1, 1, 1, 4], [0, 0.722233717, 1.516239348, 2.393582979, 3.351407094, 4.387010283, 5.505090956, 6.712668013, 8], False, 3, [1, 1, 1, 1, 1, 1, 1, 1, 1, 1, 1], False),  # 40
    Part.BSplineCurve([V(3.100321, -0.782302, 0), V(3.098983, -0.808737, 0), V(3.096264, -0.862475, 0), V(3.073285, -0.941759, 0), V(3.037136, -1.02022, 0), V(3.003787, -1.068753, 0), V(2.986473, -1.09395, 0)], [4, 1, 1, 1, 4], [0, 0.938893495, 1.908633276, 2.914225137, 4], False, 3, [1, 1, 1, 1, 1, 1, 1], False),  # 41
    Part.BSplineCurve([V(2.478295, -0.244231, 0), V(2.506133, -0.245006, 0), V(2.56132, -0.246543, 0), V(2.642566, -0.261312, 0), V(2.721471, -0.284002, 0), V(2.796409, -0.316496, 0), V(2.866346, -0.355811, 0), V(2.927674, -0.403296, 0), V(2.980693, -0.45646, 0), V(3.024063, -0.515772, 0), V(3.057337, -0.579559, 0), V(3.082911, -0.645033, 0), V(3.097104, -0.713222, 0), V(3.099242, -0.759133, 0), V(3.100321, -0.782302, 0)], [4, 1, 1, 1, 1, 1, 1, 1, 1, 1, 1, 1, 4], [0, 1.095163259, 2.171163733, 3.241058638, 4.321873601, 5.38011039, 6.391990106, 7.366004449, 8.327778327, 9.272591725, 10.192022065, 11.087607919, 12], False, 3, [1, 1, 1, 1, 1, 1, 1, 1, 1, 1, 1, 1, 1, 1, 1], False),  # 42
    Part.BSplineCurve([V(1.78122, -0.773397, 0), V(1.806183, -0.73161, 0), V(1.854011, -0.651548, 0), V(1.933795, -0.543364, 0), V(2.016466, -0.451414, 0), V(2.102635, -0.376233, 0), V(2.191776, -0.317043, 0), V(2.284472, -0.275131, 0), V(2.380409, -0.248991, 0), V(2.4457, -0.245816, 0), V(2.478295, -0.244231, 0)], [4, 1, 1, 1, 1, 1, 1, 1, 4], [0, 1.272034388, 2.437168799, 3.508375237, 4.49857839, 5.41946034, 6.295179144, 7.148887113, 8], False, 3, [1, 1, 1, 1, 1, 1, 1, 1, 1, 1, 1], False),  # 43
], False)
sketch3.addConstraint([
    Sketcher.Constraint("Block", 1),
    Sketcher.Constraint("Block", 2),
    Sketcher.Constraint("Block", 3),
    Sketcher.Constraint("Block", 4),
    Sketcher.Constraint("Block", 5),
    Sketcher.Constraint("Block", 9),
    Sketcher.Constraint("Block", 10),
    Sketcher.Constraint("Block", 11),
    Sketcher.Constraint("Block", 12),
    Sketcher.Constraint("Block", 18),
    Sketcher.Constraint("Block", 19),
    Sketcher.Constraint("Block", 20),
    Sketcher.Constraint("Block", 21),
    Sketcher.Constraint("Block", 23),
    Sketcher.Constraint("Block", 24),
    Sketcher.Constraint("Block", 28),
    Sketcher.Constraint("Block", 29),
    Sketcher.Constraint("Block", 30),
    Sketcher.Constraint("Block", 31),
    Sketcher.Constraint("Block", 32),
    Sketcher.Constraint("Block", 33),
    Sketcher.Constraint("Block", 34),
    Sketcher.Constraint("Block", 36),
    Sketcher.Constraint("Block", 37),
    Sketcher.Constraint("Block", 38),
    Sketcher.Constraint("Block", 39),
    Sketcher.Constraint("Block", 40),
    Sketcher.Constraint("Block", 41),
    Sketcher.Constraint("Block", 42),
    Sketcher.Constraint("Block", 43),
    Sketcher.Constraint("Coincident", 0, 2, 1, 2),
    Sketcher.Constraint("Coincident", 5, 1, 6, 1),
    Sketcher.Constraint("Coincident", 6, 2, 7, 1),
    Sketcher.Constraint("Coincident", 7, 2, 8, 1),
    Sketcher.Constraint("Coincident", 8, 2, 9, 2),
    Sketcher.Constraint("Coincident", 12, 1, 0, 1),
    Sketcher.Constraint("Coincident", 13, 2, 14, 1),
    Sketcher.Constraint("Coincident", 14, 2, 15, 1),
    Sketcher.Constraint("Coincident", 15, 2, 16, 1),
    Sketcher.Constraint("Coincident", 16, 2, 17, 1),
    Sketcher.Constraint("Coincident", 17, 2, 18, 2),
    Sketcher.Constraint("Coincident", 21, 1, 13, 1),
    Sketcher.Constraint("Coincident", 22, 2, 23, 2),
    Sketcher.Constraint("Coincident", 24, 1, 25, 1),
    Sketcher.Constraint("Coincident", 25, 2, 26, 1),
    Sketcher.Constraint("Coincident", 26, 2, 22, 1),
    Sketcher.Constraint("Coincident", 27, 2, 28, 2),
    Sketcher.Constraint("Coincident", 34, 1, 35, 1),
    Sketcher.Constraint("Coincident", 35, 2, 36, 2),
    Sketcher.Constraint("Coincident", 43, 1, 27, 1),
    Sketcher.Constraint("Horizontal", 6),
    Sketcher.Constraint("Vertical", 7),
    Sketcher.Constraint("Horizontal", 8),
    Sketcher.Constraint("Horizontal", 13),
    Sketcher.Constraint("Vertical", 14),
    Sketcher.Constraint("Horizontal", 15),
    Sketcher.Constraint("Vertical", 16),
    Sketcher.Constraint("Horizontal", 17),
    Sketcher.Constraint("Horizontal", 22),
    Sketcher.Constraint("Vertical", 26),
    Sketcher.Constraint("PointOnObject", 14, 2, -1),
    Sketcher.Constraint("Vertical", 16, 2, 25, 2),
    Sketcher.Constraint("Equal", 8, 26),
    Sketcher.Constraint("DistanceX", 6, 2, 6, 1, Q("1.343269 mm")),
    Sketcher.Constraint("DistanceX", 13, 2, 13, 1, Q("0.622661 mm")),
    Sketcher.Constraint("DistanceX", 17, 1, 17, 2, Q("0.227058 mm")),
])
pocket1 = body.newObject("PartDesign::Pocket", "Pocket")
pocket1.Profile = sketch3
pocket1.Length = 1
pocket1.Reversed = True

doc.recompute()
